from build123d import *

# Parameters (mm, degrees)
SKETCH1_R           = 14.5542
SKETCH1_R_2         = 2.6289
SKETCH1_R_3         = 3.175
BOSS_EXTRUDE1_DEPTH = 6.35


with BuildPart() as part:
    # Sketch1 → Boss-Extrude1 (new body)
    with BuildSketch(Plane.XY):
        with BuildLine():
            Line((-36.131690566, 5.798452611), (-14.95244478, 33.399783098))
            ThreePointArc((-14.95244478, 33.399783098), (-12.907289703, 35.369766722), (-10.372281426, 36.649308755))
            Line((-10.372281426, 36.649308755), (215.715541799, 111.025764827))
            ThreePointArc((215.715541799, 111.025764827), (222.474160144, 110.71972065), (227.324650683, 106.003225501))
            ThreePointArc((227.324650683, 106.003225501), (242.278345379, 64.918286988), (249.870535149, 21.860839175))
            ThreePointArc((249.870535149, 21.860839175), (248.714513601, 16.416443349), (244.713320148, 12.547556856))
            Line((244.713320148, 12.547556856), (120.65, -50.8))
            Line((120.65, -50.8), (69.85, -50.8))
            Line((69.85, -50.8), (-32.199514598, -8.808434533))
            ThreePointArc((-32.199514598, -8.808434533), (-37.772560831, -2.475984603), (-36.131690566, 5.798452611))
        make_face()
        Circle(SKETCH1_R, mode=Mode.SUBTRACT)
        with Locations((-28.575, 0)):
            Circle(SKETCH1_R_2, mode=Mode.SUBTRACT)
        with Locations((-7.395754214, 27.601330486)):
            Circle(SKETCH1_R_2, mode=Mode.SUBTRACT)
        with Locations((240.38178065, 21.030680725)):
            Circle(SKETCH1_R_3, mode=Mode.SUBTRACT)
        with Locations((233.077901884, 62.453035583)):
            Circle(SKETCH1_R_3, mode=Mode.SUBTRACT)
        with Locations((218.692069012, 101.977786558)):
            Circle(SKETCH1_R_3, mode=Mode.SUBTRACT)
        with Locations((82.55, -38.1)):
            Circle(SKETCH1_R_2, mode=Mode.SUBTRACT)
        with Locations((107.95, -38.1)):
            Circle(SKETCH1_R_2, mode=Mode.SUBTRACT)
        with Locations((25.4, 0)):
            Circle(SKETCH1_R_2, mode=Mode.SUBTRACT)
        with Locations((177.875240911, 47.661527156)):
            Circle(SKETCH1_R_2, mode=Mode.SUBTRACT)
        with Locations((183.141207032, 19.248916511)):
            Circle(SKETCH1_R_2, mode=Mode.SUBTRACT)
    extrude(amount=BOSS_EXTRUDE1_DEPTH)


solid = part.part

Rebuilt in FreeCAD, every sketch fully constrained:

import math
import FreeCAD as App
import Part
import Sketcher

V = App.Vector
Q = App.Units.Quantity

doc = App.newDocument("Part")
body = doc.addObject("PartDesign::Body", "Body")

sketch1 = doc.addObject("Sketcher::SketchObject", "Sketch")
body.addObject(sketch1)
sketch1.AttachmentSupport = (doc.XY_Plane, [""])
sketch1.MapMode = "FlatFace"
sketch1.addGeometry([
    Part.LineSegment(V(-15, 33.4, 0), V(-36.1, 5.8, 0)),
    Part.ArcOfCircle(Part.Circle(V(-28.6, 0, 0), V(0, 0, 1), 9.5), math.radians(143), math.radians(248)),
    Part.LineSegment(V(-32.2, -8.8, 0), V(69.8, -50.8, 0)),
    Part.LineSegment(V(69.8, -50.8, 0), V(120.7, -50.8, 0)),
    Part.LineSegment(V(120.7, -50.8, 0), V(244.7, 12.5, 0)),
    Part.ArcOfCircle(Part.Circle(V(240.4, 21, 0), V(0, 0, 1), 9.5), math.radians(-63), math.radians(5)),
    Part.ArcOfCircle(Part.Circle(V(0, 0, 0), V(0, 0, 1), 250.8), math.radians(5), math.radians(25)),
    Part.ArcOfCircle(Part.Circle(V(218.7, 102, 0), V(0, 0, 1), 9.5), math.radians(25), math.radians(108)),
    Part.LineSegment(V(215.7, 111, 0), V(-10.4, 36.6, 0)),
    Part.ArcOfCircle(Part.Circle(V(-7.4, 27.6, 0), V(0, 0, 1), 9.5), math.radians(108), math.radians(142)),
    Part.Circle(V(108, -38.1, 0), V(0, 0, 1), 2.6),
    Part.Circle(V(240.4, 21, 0), V(0, 0, 1), 3.2),
    Part.Circle(V(183.1, 19.2, 0), V(0, 0, 1), 2.6),
    Part.Circle(V(82.5, -38.1, 0), V(0, 0, 1), 2.6),
    Part.Circle(V(25.4, 0, 0), V(0, 0, 1), 2.6),
    Part.Circle(V(0, 0, 0), V(0, 0, 1), 14.6),
    Part.Circle(V(-28.6, 0, 0), V(0, 0, 1), 2.6),
    Part.Circle(V(-7.4, 27.6, 0), V(0, 0, 1), 2.6),
    Part.Circle(V(177.9, 47.7, 0), V(0, 0, 1), 2.6),
    Part.Circle(V(233.1, 62.5, 0), V(0, 0, 1), 3.2),
    Part.Circle(V(218.7, 102, 0), V(0, 0, 1), 3.2),
], False)
sketch1.addConstraint([
    Sketcher.Constraint("Tangent", 0, 2, 1, 1),
    Sketcher.Constraint("Tangent", 1, 2, 2, 1),
    Sketcher.Constraint("Coincident", 2, 2, 3, 1),
    Sketcher.Constraint("Coincident", 3, 2, 4, 1),
    Sketcher.Constraint("Tangent", 4, 2, 5, 1),
    Sketcher.Constraint("Tangent", 5, 2, 6, 1),
    Sketcher.Constraint("Tangent", 6, 2, 7, 1),
    Sketcher.Constraint("Tangent", 7, 2, 8, 1),
    Sketcher.Constraint("Tangent", 8, 2, 9, 1),
    Sketcher.Constraint("Tangent", 9, 2, 0, 1),
    Sketcher.Constraint("Horizontal", 3),
    Sketcher.Constraint("Coincident", 6, 3, -1, 1),
    Sketcher.Constraint("Coincident", 15, 3, -1, 1),
    Sketcher.Constraint("Coincident", 11, 3, 5, 3),
    Sketcher.Constraint("Coincident", 16, 3, 1, 3),
    Sketcher.Constraint("Coincident", 17, 3, 9, 3),
    Sketcher.Constraint("Coincident", 20, 3, 7, 3),
    Sketcher.Constraint("Equal", 1, 5),
    Sketcher.Constraint("Equal", 5, 7),
    Sketcher.Constraint("Equal", 7, 9),
    Sketcher.Constraint("Equal", 10, 12),
    Sketcher.Constraint("Equal", 12, 13),
    Sketcher.Constraint("Equal", 13, 14),
    Sketcher.Constraint("Equal", 14, 16),
    Sketcher.Constraint("Equal", 16, 17),
    Sketcher.Constraint("Equal", 17, 18),
    Sketcher.Constraint("Equal", 11, 19),
    Sketcher.Constraint("Equal", 19, 20),
    Sketcher.Constraint("PointOnObject", 1, 3, -1),
    Sketcher.Constraint("PointOnObject", 14, 3, -1),
    Sketcher.Constraint("Horizontal", 10, 3, 13, 3),
    Sketcher.Constraint("Diameter", 11, Q("0.25 in")),
    Sketcher.Constraint("DistanceX", 3, 1, 3, 2, Q("2 in")),
    Sketcher.Constraint("Diameter", 10, Q("0.207 in")),
    Sketcher.Constraint("Diameter", 15, Q("1.146 in")),
    Sketcher.Constraint("DistanceX", -1, 1, 14, 3, Q("1 in")),
    Sketcher.Constraint("DistanceY", 2, 2, -1, 1, Q("2 in")),
    Sketcher.Constraint("Radius", 1, Q("0.375 in")),
    Sketcher.Constraint("Radius", 6, Q("9.875 in")),
    Sketcher.Constraint("DistanceX", 13, 3, 10, 3, Q("1 in")),
    Sketcher.Constraint("DistanceY", 10, 3, -1, 1, Q("1.5 in")),
    Sketcher.Constraint("Angle", 0, Q("-127.5 deg")),
    Sketcher.Constraint("DistanceX", 2, 2, 13, 3, Q("0.5 in")),
    Sketcher.Constraint("DistanceX", -1, 1, 10, 3, Q("4.25 in")),
    Sketcher.Constraint("DistanceX", 1, 3, -1, 1, Q("1.125 in")),
    Sketcher.Constraint("DistanceX", -1, 1, 19, 3, 233.077902),
    Sketcher.Constraint("DistanceY", 18, 3, 6, 2, 58.341698),
    Sketcher.Constraint("DistanceX", 18, 3, 7, 2, 37.840301),
    Sketcher.Constraint("Distance", 8, 238.007481),
    Sketcher.Constraint("DistanceX", -1, 1, 5, 3, 240.381781),
    Sketcher.Constraint("DistanceX", -1, 1, 7, 3, 218.692069),
    Sketcher.Constraint("DistanceX", 12, 3, 7, 3, 35.550862),
    Sketcher.Constraint("DistanceY", 12, 3, 7, 3, 82.72887),
    Sketcher.Constraint("DistanceY", 19, 3, 7, 3, 39.524751),
])
pad1 = doc.addObject("PartDesign::Pad", "Pad")
body.addObject(pad1)
pad1.Profile = sketch1
pad1.Length = Q("0.25 in")

doc.recompute()
